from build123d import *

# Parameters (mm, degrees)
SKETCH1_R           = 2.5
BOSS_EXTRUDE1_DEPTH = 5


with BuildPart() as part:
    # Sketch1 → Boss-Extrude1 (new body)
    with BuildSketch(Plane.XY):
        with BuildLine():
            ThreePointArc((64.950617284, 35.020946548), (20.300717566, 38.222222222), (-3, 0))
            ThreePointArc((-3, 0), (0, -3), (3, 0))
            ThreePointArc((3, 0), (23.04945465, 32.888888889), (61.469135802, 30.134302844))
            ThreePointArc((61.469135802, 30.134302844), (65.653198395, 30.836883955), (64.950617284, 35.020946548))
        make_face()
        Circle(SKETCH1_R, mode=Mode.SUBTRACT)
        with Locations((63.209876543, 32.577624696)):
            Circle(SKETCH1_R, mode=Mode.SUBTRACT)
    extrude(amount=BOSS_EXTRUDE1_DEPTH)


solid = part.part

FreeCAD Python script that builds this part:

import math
import FreeCAD as App
import Part
import Sketcher

doc = App.newDocument("Part")
body = doc.addObject("PartDesign::Body", "Body")

# Sketch on XY plane
sketch1 = doc.addObject("Sketcher::SketchObject", "Sketch")
body.addObject(sketch1)
sketch1.AttachmentSupport = (doc.XY_Plane, [""])
sketch1.MapMode = "FlatFace"
sketch1.addGeometry(Part.ArcOfCircle(Part.Circle(App.Vector(40, 0, 0), App.Vector(0, 0, 1), 43), math.radians(55), math.radians(180)), False)
sketch1.addGeometry(Part.ArcOfCircle(Part.Circle(App.Vector(0, 0, 0), App.Vector(0, 0, 1), 3), math.radians(180), math.radians(360)), False)
sketch1.addGeometry(Part.ArcOfCircle(Part.Circle(App.Vector(40, 0, 0), App.Vector(0, 0, 1), 37), math.radians(55), math.radians(180)), False)
sketch1.addGeometry(Part.ArcOfCircle(Part.Circle(App.Vector(63.2, 32.6, 0), App.Vector(0, 0, 1), 3), math.radians(-125), math.radians(55)), False)
sketch1.addGeometry(Part.Circle(App.Vector(0, 0, 0), App.Vector(0, 0, 1), 2.5), False)
sketch1.addGeometry(Part.Circle(App.Vector(63.2, 32.6, 0), App.Vector(0, 0, 1), 2.5), False)
sketch1.addConstraint(Sketcher.Constraint("Tangent", 0, 2, 1, 1))
sketch1.addConstraint(Sketcher.Constraint("Tangent", 1, 2, 2, 2))
sketch1.addConstraint(Sketcher.Constraint("Tangent", 2, 1, 3, 1))
sketch1.addConstraint(Sketcher.Constraint("Tangent", 3, 2, 0, 1))
sketch1.addConstraint(Sketcher.Constraint("Coincident", 1, 3, -1, 1))
sketch1.addConstraint(Sketcher.Constraint("Coincident", 4, 3, -1, 1))
sketch1.addConstraint(Sketcher.Constraint("Coincident", 2, 3, 0, 3))
sketch1.addConstraint(Sketcher.Constraint("Coincident", 5, 3, 3, 3))
sketch1.addConstraint(Sketcher.Constraint("Equal", 4, 5))
sketch1.addConstraint(Sketcher.Constraint("PointOnObject", 0, 3, -1))
sketch1.addConstraint(Sketcher.Constraint("Diameter", 4, 5.0))
sketch1.addConstraint(Sketcher.Constraint("Radius", 0, 43.0))
sketch1.addConstraint(Sketcher.Constraint("Radius", 1, 3.0))
sketch1.addConstraint(Sketcher.Constraint("DistanceX", 3, 3, 3, 2, 1.740741))
pad1 = doc.addObject("PartDesign::Pad", "Pad")
body.addObject(pad1)
pad1.Profile = sketch1
pad1.Length = 5

doc.recompute()
